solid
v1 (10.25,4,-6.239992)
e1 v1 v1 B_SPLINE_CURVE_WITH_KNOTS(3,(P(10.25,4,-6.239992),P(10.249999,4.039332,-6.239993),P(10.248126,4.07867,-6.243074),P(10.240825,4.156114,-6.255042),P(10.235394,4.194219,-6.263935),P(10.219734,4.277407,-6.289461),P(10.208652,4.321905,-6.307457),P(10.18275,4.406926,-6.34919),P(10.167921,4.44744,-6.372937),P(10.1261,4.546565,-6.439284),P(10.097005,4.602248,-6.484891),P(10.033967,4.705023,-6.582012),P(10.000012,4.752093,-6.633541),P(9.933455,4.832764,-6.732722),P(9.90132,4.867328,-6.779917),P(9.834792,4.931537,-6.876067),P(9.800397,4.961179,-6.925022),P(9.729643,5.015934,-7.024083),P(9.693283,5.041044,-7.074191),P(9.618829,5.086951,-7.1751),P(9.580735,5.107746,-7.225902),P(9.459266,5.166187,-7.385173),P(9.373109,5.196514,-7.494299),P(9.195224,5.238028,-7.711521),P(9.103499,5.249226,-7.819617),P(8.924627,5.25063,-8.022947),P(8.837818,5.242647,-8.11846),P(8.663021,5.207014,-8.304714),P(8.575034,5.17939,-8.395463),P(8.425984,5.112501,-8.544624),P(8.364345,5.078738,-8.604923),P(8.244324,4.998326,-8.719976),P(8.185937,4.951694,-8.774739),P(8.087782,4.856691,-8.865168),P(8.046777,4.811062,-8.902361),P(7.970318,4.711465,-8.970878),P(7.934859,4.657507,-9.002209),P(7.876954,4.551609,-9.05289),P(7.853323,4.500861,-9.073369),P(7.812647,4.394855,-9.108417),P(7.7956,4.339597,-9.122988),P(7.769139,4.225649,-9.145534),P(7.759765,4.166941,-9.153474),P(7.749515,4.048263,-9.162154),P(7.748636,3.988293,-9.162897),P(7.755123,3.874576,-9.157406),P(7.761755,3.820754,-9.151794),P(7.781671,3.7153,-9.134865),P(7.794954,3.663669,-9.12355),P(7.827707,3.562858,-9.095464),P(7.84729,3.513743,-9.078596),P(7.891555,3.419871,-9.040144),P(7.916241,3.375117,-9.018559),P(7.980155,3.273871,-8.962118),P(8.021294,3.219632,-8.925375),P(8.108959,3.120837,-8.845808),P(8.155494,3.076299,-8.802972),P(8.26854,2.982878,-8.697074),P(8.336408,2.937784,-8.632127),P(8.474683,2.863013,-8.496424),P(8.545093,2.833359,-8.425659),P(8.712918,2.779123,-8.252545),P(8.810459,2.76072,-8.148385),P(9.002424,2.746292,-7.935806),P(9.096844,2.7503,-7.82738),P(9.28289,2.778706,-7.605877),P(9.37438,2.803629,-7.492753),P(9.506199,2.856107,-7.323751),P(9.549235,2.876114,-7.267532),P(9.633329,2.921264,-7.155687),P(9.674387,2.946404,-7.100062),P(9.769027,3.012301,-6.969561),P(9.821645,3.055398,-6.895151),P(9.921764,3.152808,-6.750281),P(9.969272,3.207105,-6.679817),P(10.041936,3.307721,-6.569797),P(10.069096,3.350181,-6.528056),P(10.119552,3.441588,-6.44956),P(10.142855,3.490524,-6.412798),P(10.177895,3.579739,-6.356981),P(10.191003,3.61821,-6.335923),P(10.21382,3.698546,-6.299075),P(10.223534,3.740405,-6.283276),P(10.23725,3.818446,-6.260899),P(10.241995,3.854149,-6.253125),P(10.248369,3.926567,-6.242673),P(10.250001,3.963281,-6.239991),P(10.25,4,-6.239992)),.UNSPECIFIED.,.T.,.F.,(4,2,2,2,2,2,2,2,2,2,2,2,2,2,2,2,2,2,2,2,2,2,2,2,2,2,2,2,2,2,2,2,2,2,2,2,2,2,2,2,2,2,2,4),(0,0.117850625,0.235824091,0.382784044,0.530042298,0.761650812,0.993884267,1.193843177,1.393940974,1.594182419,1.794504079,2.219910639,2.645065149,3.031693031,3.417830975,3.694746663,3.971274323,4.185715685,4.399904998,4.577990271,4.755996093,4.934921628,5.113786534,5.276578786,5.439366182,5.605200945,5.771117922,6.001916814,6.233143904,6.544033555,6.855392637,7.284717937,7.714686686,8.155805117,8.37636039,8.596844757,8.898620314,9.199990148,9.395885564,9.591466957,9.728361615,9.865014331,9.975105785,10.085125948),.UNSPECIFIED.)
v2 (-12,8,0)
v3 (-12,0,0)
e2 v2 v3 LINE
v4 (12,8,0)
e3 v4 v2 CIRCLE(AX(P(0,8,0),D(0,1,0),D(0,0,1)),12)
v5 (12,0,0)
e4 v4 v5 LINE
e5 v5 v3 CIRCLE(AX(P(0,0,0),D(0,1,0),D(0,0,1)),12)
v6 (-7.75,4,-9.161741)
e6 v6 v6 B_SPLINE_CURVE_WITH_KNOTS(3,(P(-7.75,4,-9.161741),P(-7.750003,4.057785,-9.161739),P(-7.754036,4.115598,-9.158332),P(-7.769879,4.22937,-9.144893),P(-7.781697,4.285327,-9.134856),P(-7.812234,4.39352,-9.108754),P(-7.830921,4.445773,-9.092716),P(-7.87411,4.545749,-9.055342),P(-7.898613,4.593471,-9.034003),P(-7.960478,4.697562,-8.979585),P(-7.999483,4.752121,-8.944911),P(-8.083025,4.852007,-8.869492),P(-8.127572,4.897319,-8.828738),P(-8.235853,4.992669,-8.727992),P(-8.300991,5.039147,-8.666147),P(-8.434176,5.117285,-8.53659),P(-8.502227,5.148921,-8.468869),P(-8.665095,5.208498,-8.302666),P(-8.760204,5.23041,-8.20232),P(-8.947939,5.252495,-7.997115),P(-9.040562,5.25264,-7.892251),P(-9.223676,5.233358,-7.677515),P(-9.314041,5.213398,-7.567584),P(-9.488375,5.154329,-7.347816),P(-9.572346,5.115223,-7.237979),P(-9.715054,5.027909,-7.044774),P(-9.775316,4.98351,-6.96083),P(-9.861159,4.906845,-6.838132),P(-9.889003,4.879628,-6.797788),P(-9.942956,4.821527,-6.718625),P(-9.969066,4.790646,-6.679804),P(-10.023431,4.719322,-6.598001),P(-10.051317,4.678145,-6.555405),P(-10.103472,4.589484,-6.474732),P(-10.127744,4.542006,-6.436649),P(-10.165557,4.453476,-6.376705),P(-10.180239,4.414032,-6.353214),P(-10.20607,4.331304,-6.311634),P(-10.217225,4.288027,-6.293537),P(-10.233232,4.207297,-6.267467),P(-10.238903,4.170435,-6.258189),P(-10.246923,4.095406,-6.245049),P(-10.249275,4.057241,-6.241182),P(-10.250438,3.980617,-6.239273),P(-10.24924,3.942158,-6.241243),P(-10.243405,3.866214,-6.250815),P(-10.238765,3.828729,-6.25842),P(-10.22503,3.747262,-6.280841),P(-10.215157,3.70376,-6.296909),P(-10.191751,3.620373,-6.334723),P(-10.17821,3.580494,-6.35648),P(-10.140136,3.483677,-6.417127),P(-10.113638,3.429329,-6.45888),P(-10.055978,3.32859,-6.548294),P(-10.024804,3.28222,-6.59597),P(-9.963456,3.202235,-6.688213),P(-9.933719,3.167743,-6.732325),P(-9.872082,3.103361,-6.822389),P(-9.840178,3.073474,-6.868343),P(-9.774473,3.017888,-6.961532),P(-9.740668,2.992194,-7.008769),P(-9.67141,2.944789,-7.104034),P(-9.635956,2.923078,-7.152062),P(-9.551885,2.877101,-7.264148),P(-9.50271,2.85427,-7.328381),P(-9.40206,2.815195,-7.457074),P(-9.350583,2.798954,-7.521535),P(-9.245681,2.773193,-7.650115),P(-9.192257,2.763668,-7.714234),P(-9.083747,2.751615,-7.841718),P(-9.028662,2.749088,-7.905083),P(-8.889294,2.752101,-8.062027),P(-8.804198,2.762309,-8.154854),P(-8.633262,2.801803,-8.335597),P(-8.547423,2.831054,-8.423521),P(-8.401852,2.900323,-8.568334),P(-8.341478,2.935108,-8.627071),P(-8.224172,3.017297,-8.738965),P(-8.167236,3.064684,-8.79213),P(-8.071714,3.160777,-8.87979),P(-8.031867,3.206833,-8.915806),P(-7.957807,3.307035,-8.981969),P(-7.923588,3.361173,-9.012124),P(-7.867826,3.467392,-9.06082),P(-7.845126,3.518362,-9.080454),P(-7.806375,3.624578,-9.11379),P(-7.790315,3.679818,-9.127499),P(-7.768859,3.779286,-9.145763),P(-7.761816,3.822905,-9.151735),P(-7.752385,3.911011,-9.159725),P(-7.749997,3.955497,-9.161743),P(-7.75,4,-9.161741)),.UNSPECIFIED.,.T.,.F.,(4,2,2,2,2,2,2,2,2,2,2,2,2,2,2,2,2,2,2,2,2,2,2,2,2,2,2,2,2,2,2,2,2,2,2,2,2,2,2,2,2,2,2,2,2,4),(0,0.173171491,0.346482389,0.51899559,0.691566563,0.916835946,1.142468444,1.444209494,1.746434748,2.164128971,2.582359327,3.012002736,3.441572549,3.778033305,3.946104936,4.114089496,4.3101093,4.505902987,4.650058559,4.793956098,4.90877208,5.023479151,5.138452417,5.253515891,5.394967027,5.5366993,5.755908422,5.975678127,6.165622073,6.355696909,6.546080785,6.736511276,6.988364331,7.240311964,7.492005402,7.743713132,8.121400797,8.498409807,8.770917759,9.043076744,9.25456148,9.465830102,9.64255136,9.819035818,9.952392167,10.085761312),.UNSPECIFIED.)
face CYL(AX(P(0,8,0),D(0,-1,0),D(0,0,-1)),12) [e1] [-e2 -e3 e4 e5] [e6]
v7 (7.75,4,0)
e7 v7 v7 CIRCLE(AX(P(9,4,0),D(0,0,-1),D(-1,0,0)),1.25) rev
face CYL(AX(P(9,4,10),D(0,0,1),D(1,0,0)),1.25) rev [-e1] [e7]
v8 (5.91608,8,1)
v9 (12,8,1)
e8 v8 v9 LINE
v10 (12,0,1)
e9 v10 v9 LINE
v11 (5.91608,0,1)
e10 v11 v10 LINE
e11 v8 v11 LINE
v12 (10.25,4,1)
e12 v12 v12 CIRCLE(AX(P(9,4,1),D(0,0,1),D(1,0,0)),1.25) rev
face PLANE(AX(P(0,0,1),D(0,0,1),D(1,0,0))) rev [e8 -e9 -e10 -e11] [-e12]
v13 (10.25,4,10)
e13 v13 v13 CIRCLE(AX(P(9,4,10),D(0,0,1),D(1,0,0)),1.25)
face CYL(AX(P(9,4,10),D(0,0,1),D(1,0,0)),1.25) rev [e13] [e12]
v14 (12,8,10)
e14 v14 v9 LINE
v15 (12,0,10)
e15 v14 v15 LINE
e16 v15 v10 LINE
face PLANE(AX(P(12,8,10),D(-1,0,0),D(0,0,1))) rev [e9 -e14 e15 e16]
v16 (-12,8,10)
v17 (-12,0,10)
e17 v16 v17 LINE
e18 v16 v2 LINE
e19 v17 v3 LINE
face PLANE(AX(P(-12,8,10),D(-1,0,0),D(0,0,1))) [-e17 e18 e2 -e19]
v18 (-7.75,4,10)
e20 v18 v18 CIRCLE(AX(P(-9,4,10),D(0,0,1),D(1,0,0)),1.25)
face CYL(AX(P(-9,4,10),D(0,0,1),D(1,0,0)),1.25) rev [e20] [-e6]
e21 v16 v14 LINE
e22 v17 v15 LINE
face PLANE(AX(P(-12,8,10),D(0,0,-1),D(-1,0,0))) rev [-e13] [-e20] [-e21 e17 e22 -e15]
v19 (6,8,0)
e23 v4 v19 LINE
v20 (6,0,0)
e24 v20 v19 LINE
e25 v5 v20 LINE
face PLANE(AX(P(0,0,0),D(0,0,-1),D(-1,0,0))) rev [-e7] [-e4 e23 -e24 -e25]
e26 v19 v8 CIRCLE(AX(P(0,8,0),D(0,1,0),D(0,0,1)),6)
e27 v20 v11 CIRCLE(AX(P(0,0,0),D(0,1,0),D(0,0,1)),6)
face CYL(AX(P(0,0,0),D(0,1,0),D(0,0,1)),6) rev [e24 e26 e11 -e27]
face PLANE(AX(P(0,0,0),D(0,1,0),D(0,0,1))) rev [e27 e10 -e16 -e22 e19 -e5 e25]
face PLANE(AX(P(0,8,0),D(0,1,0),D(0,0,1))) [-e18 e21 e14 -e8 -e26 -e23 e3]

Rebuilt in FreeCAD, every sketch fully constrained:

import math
import FreeCAD as App
import Part
import Sketcher
from FreeCAD import Vector


def add_polygon(sketch, points):
    """Adds a closed chain of lines whose ends are joined by coincident constraints."""
    first, n = sketch.GeometryCount, len(points)
    for a, b in zip(points, points[1:] + points[:1]):
        sketch.addGeometry(Part.LineSegment(App.Vector(*a, 0), App.Vector(*b, 0)), False)
    for i in range(n):
        sketch.addConstraint(Sketcher.Constraint("Coincident", first + i, 2, first + (i + 1) % n, 1))

doc = App.newDocument("Part")
body = doc.addObject("PartDesign::Body", "Body")

sketch1 = body.newObject("Sketcher::SketchObject", "Sketch")
sketch1.AttachmentSupport = (doc.getObject("XZ_Plane"), [""])
sketch1.MapMode = "FlatFace"
sketch1.addGeometry(Part.LineSegment(Vector(-12, 10, 0), Vector(12, 10, 0)), False)
sketch1.addGeometry(Part.LineSegment(Vector(12, 10, 0), Vector(12, 0, 0)), False)
sketch1.addGeometry(Part.ArcOfCircle(Part.Circle(Vector(0, 0, 0), Vector(0, 0, 1), 12), math.radians(180), math.radians(360)), False)
sketch1.addGeometry(Part.LineSegment(Vector(-12, 0, 0), Vector(-12, 10, 0)), False)
sketch1.addConstraint(Sketcher.Constraint("Coincident", 0, 2, 1, 1))
sketch1.addConstraint(Sketcher.Constraint("Tangent", 1, 2, 2, 2))
sketch1.addConstraint(Sketcher.Constraint("Tangent", 2, 1, 3, 1))
sketch1.addConstraint(Sketcher.Constraint("Coincident", 3, 2, 0, 1))
sketch1.addConstraint(Sketcher.Constraint("Horizontal", 0))
sketch1.addConstraint(Sketcher.Constraint("Vertical", 1))
sketch1.addConstraint(Sketcher.Constraint("Vertical", 3))
sketch1.addConstraint(Sketcher.Constraint("Coincident", 2, 3, -1, 1))
sketch1.addConstraint(Sketcher.Constraint("Radius", 2, 12.0))
sketch1.addConstraint(Sketcher.Constraint("DistanceY", 1, 2, 1, 1, 10.0))
pad1 = body.newObject("PartDesign::Pad", "Pad")
pad1.Profile = sketch1
pad1.Length = 8
pad1.Reversed = True

sketch2 = body.newObject("Sketcher::SketchObject", "Sketch001")
sketch2.AttachmentSupport = (doc.getObject("XZ_Plane"), [""])
sketch2.MapMode = "FlatFace"
sketch2.AttachmentOffset = App.Placement(Vector(0, 0, -8), App.Rotation())
sketch2.addGeometry(Part.Circle(Vector(0, 0, 0), Vector(0, 0, 1), 6), False)
sketch2.addConstraint(Sketcher.Constraint("Coincident", 0, 3, -1, 1))
sketch2.addConstraint(Sketcher.Constraint("Diameter", 0, 12.0))
pocket1 = body.newObject("PartDesign::Pocket", "Pocket")
pocket1.Profile = sketch2
pocket1.Type = "ThroughAll"
pocket1.Reversed = True

sketch3 = body.newObject("Sketcher::SketchObject", "Sketch002")
sketch3.AttachmentSupport = (doc.getObject("XY_Plane"), [""])
sketch3.MapMode = "FlatFace"
sketch3.AttachmentOffset = App.Placement(Vector(0, 0, 10), App.Rotation())
sketch3.addGeometry(Part.Circle(Vector(-9, 4, 0), Vector(0, 0, 1), 1.2), False)
sketch3.addGeometry(Part.Circle(Vector(9, 4, 0), Vector(0, 0, 1), 1.2), False)
sketch3.addConstraint(Sketcher.Constraint("Equal", 0, 1))
sketch3.addConstraint(Sketcher.Constraint("Symmetric", 0, 3, 1, 3, -2))
sketch3.addConstraint(Sketcher.Constraint("Diameter", 0, 2.5))
sketch3.addConstraint(Sketcher.Constraint("DistanceX", 0, 3, -1, 1, 9.0))
sketch3.addConstraint(Sketcher.Constraint("DistanceY", -1, 1, 0, 3, 4.0))
doc.recompute()
hole = body.newObject("PartDesign::Hole", "Hole")
hole.Profile = sketch3
hole.ThreadType = "None"
hole.Diameter = 2.5
hole.DepthType = "ThroughAll"

sketch4 = body.newObject("Sketcher::SketchObject", "Sketch003")
sketch4.AttachmentSupport = (doc.getObject("XZ_Plane"), [""])
sketch4.MapMode = "FlatFace"
sketch4.AttachmentOffset = App.Placement(Vector(0, 0, -8), App.Rotation())
add_polygon(sketch4, [(0, 0), (0, 1), (12, 1), (12, 0)])
sketch4.addConstraint(Sketcher.Constraint("Vertical", 0))
sketch4.addConstraint(Sketcher.Constraint("Horizontal", 1))
sketch4.addConstraint(Sketcher.Constraint("Vertical", 2))
sketch4.addConstraint(Sketcher.Constraint("Horizontal", 3))
sketch4.addConstraint(Sketcher.Constraint("Coincident", 3, 2, -1, 1))
sketch4.addConstraint(Sketcher.Constraint("DistanceX", 1, 1, 1, 2, 12.0))
sketch4.addConstraint(Sketcher.Constraint("DistanceY", 0, 1, 0, 2, 1.0))
pocket2 = body.newObject("PartDesign::Pocket", "Pocket001")
pocket2.Profile = sketch4
pocket2.Length = 8
pocket2.Reversed = True

doc.recompute()
